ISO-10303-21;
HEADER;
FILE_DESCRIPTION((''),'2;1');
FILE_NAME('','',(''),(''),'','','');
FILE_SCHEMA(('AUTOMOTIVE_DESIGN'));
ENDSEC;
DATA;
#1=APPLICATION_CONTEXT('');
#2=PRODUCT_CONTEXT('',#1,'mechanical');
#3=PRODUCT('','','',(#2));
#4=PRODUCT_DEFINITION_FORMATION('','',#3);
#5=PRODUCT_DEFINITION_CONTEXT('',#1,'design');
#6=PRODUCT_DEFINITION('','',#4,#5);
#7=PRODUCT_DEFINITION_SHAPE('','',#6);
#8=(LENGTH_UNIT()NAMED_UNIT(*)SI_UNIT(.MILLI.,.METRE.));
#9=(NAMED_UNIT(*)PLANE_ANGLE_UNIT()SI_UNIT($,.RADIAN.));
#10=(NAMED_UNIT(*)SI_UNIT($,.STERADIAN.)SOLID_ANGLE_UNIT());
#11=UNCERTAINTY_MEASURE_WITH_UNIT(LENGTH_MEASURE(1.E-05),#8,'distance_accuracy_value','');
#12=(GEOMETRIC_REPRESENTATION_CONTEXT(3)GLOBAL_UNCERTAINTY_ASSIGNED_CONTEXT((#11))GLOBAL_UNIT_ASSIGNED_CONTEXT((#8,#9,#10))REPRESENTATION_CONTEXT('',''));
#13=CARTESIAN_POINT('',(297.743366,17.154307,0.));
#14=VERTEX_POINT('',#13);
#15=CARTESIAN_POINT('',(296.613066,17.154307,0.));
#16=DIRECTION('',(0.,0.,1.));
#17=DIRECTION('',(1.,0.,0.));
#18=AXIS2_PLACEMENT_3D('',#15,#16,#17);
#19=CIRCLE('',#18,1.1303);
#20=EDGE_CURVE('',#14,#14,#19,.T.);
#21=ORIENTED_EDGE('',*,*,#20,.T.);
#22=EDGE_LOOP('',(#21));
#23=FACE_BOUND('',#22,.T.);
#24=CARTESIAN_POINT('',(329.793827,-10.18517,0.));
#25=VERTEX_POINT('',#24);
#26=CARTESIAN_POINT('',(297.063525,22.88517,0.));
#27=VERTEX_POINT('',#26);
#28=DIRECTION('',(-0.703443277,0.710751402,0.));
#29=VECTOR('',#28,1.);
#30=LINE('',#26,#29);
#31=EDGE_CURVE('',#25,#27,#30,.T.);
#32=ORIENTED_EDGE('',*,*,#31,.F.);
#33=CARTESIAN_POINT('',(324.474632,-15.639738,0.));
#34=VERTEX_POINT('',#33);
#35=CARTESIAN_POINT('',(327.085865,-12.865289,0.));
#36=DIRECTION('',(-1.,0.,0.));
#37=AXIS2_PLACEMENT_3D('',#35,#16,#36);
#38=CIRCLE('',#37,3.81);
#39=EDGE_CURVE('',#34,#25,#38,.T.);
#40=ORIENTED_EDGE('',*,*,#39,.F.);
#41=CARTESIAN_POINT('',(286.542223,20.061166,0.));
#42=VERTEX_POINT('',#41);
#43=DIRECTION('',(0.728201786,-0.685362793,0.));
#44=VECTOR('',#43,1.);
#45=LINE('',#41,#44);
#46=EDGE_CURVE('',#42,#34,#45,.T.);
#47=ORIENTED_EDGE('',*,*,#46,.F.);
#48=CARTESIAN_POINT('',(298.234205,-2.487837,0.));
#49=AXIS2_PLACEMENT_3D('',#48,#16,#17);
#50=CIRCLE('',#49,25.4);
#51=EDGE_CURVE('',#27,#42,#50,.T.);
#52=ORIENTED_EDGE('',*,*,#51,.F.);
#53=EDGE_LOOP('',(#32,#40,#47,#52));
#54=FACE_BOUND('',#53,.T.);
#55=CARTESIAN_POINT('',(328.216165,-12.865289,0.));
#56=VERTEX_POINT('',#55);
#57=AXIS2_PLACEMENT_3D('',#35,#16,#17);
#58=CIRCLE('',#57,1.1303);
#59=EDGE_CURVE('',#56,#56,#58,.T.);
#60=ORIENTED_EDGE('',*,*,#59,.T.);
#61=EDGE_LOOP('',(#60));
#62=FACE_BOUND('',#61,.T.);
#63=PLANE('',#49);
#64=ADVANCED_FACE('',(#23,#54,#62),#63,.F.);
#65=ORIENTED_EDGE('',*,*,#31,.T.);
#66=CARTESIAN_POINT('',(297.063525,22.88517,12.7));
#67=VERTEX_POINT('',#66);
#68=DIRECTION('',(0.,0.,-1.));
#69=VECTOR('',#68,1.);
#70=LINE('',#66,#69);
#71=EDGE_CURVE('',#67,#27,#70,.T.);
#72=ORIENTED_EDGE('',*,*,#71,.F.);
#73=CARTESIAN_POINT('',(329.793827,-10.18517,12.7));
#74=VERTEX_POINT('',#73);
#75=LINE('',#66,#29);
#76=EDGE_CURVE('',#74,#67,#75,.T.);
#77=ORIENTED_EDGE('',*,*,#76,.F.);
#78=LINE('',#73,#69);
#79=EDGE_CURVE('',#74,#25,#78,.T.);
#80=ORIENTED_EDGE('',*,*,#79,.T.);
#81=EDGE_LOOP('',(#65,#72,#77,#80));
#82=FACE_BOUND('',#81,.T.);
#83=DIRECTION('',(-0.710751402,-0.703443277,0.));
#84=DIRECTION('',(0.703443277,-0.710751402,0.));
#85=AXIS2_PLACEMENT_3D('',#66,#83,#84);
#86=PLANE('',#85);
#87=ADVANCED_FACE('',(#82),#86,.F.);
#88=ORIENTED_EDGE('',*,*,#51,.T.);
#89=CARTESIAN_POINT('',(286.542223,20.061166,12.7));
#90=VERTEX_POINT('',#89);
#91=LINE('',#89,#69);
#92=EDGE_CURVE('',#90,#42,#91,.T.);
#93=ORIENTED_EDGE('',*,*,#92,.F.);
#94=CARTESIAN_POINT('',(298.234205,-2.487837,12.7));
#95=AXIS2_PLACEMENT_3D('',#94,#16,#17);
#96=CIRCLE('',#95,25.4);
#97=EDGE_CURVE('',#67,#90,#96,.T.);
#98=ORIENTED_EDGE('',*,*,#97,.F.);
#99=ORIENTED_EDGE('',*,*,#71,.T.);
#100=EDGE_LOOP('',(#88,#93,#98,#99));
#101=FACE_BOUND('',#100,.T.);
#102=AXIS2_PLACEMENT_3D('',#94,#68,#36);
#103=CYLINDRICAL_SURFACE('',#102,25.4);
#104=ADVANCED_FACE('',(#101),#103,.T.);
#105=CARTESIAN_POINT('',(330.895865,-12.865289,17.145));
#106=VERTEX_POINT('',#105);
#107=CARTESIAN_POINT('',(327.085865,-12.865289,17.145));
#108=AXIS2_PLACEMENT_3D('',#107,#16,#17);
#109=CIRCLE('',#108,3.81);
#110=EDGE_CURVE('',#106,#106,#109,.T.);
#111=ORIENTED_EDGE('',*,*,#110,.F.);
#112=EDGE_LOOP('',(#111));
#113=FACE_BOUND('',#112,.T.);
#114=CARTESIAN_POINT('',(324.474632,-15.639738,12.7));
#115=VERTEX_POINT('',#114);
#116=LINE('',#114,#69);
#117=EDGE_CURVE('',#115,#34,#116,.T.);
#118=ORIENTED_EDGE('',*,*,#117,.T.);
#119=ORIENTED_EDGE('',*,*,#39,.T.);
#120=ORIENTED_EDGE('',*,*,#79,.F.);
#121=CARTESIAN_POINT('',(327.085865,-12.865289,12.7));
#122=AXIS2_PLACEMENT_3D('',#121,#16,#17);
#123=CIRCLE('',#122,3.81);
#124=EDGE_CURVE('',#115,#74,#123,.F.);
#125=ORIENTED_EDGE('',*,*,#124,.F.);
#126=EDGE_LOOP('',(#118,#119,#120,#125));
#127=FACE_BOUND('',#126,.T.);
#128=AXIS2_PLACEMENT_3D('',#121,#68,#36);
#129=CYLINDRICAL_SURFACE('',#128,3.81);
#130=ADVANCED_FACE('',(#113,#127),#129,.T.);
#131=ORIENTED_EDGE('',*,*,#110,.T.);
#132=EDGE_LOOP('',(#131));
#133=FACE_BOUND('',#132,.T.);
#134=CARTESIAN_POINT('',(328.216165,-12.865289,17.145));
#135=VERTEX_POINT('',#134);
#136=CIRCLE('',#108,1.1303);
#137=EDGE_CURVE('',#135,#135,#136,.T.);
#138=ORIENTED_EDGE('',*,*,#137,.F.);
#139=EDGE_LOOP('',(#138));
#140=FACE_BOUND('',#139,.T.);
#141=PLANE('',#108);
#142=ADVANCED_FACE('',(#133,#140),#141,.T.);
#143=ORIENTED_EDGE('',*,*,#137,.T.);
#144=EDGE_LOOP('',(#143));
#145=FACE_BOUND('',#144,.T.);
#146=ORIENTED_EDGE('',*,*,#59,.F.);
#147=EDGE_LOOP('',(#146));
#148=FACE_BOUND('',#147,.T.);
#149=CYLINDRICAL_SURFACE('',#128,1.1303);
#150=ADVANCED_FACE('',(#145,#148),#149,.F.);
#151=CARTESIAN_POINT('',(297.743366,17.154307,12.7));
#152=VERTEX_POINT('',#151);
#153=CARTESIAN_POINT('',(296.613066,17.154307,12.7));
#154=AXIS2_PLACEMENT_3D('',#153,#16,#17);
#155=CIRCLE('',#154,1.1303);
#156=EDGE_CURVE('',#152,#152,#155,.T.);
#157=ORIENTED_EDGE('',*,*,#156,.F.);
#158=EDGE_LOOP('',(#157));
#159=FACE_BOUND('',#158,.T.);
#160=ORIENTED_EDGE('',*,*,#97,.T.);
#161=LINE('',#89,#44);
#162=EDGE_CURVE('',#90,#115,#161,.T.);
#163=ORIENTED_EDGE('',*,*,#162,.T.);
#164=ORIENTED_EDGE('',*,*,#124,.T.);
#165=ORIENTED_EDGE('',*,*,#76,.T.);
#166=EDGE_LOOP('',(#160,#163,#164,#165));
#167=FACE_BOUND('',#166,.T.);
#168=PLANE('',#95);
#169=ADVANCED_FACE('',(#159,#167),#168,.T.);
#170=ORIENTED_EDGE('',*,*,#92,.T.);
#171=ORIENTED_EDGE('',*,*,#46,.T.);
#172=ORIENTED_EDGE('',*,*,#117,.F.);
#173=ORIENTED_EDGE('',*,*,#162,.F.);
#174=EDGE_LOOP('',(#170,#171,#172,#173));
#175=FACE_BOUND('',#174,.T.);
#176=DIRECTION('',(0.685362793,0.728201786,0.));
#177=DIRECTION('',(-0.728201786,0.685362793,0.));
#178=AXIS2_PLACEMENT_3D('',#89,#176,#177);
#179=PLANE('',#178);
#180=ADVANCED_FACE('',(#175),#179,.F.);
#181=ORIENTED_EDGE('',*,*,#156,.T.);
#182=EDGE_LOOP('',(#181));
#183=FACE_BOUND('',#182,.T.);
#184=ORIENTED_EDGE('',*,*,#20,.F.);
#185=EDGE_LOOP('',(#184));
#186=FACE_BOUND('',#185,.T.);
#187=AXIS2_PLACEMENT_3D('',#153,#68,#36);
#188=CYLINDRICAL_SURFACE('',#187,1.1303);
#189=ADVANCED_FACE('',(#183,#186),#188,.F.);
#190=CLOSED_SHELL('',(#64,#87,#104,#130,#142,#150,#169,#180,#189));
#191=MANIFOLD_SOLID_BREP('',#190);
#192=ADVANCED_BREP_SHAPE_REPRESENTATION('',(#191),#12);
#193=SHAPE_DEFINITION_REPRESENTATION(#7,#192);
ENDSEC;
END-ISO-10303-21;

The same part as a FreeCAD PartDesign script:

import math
import FreeCAD as App
import Part
import Sketcher
Q = App.Units.Quantity

doc = App.newDocument("Part")
body = doc.addObject("PartDesign::Body", "Body")

sketch1 = doc.addObject("Sketcher::SketchObject", "Sketch")
body.addObject(sketch1)
sketch1.AttachmentSupport = (doc.XY_Plane, [""])
sketch1.MapMode = "FlatFace"
sketch1.addGeometry([
    Part.LineSegment(App.Vector(286.542223, 20.061166, 0), App.Vector(324.474632, -15.639738, 0)),
    Part.ArcOfCircle(Part.Circle(App.Vector(327.085865, -12.865289, 0), App.Vector(0, 0, 1), 3.81), math.radians(-133.264145), math.radians(44.703916)),
    Part.LineSegment(App.Vector(329.793827, -10.18517, 0), App.Vector(297.063525, 22.88517, 0)),
    Part.ArcOfCircle(Part.Circle(App.Vector(298.234205, -2.487837, 0), App.Vector(0, 0, 1), 25.4), math.radians(92.641686), math.radians(117.407388)),
    Part.Circle(App.Vector(327.085865, -12.865289, 0), App.Vector(0, 0, 1), 1.1303),
    Part.Circle(App.Vector(296.613066, 17.154307, 0), App.Vector(0, 0, 1), 1.1303),
], False)
sketch1.addConstraint([
    Sketcher.Constraint("Tangent", 0, 2, 1, 1),
    Sketcher.Constraint("Tangent", 1, 2, 2, 1),
    Sketcher.Constraint("Coincident", 2, 2, 3, 1),
    Sketcher.Constraint("Coincident", 3, 2, 0, 1),
    Sketcher.Constraint("Coincident", 4, 3, 1, 3),
    Sketcher.Constraint("Equal", 4, 5),
    Sketcher.Constraint("Radius", 3, Q("1 in")),
    Sketcher.Constraint("Radius", 1, Q("0.15 in")),
    Sketcher.Constraint("Diameter", 4, Q("0.089 in")),
    Sketcher.Constraint("DistanceX", 5, 3, 4, 3, 30.472798),
    Sketcher.Constraint("DistanceY", 0, 2, 3, 3, 13.151901),
    Sketcher.Constraint("DistanceX", 3, 2, 2, 2, 10.521302),
    Sketcher.Constraint("Distance", 0, 52.090519),
    Sketcher.Constraint("DistanceY", 1, 3, -1, 1, 12.865289),
    Sketcher.Constraint("DistanceY", 1, 2, -1, 1, 10.18517),
    Sketcher.Constraint("DistanceY", 5, 3, 3, 2, 2.906859),
    Sketcher.Constraint("DistanceX", -1, 1, 1, 3, 327.085865),
])
pad1 = doc.addObject("PartDesign::Pad", "Pad")
body.addObject(pad1)
pad1.Profile = sketch1
pad1.Length = Q("0.5 in")

sketch2 = doc.addObject("Sketcher::SketchObject", "Sketch001")
body.addObject(sketch2)
sketch2.AttachmentSupport = (doc.XY_Plane, [""])
sketch2.MapMode = "FlatFace"
sketch2.addGeometry([
    Part.Circle(App.Vector(327.085865, -12.865289, 0), App.Vector(0, 0, 1), 3.81),
    Part.Circle(App.Vector(327.085865, -12.865289, 0), App.Vector(0, 0, 1), 1.1303),
], False)
sketch2.addConstraint([
    Sketcher.Constraint("Coincident", 1, 3, 0, 3),
    Sketcher.Constraint("Diameter", 0, Q("0.3 in")),
    Sketcher.Constraint("Diameter", 1, Q("0.089 in")),
    Sketcher.Constraint("DistanceY", 0, 3, -1, 1, 12.865289),
    Sketcher.Constraint("DistanceX", -1, 1, 0, 3, 327.085865),
])
pad2 = doc.addObject("PartDesign::Pad", "Pad001")
body.addObject(pad2)
pad2.Profile = sketch2
pad2.Length = Q("0.675 in")

doc.recompute()
